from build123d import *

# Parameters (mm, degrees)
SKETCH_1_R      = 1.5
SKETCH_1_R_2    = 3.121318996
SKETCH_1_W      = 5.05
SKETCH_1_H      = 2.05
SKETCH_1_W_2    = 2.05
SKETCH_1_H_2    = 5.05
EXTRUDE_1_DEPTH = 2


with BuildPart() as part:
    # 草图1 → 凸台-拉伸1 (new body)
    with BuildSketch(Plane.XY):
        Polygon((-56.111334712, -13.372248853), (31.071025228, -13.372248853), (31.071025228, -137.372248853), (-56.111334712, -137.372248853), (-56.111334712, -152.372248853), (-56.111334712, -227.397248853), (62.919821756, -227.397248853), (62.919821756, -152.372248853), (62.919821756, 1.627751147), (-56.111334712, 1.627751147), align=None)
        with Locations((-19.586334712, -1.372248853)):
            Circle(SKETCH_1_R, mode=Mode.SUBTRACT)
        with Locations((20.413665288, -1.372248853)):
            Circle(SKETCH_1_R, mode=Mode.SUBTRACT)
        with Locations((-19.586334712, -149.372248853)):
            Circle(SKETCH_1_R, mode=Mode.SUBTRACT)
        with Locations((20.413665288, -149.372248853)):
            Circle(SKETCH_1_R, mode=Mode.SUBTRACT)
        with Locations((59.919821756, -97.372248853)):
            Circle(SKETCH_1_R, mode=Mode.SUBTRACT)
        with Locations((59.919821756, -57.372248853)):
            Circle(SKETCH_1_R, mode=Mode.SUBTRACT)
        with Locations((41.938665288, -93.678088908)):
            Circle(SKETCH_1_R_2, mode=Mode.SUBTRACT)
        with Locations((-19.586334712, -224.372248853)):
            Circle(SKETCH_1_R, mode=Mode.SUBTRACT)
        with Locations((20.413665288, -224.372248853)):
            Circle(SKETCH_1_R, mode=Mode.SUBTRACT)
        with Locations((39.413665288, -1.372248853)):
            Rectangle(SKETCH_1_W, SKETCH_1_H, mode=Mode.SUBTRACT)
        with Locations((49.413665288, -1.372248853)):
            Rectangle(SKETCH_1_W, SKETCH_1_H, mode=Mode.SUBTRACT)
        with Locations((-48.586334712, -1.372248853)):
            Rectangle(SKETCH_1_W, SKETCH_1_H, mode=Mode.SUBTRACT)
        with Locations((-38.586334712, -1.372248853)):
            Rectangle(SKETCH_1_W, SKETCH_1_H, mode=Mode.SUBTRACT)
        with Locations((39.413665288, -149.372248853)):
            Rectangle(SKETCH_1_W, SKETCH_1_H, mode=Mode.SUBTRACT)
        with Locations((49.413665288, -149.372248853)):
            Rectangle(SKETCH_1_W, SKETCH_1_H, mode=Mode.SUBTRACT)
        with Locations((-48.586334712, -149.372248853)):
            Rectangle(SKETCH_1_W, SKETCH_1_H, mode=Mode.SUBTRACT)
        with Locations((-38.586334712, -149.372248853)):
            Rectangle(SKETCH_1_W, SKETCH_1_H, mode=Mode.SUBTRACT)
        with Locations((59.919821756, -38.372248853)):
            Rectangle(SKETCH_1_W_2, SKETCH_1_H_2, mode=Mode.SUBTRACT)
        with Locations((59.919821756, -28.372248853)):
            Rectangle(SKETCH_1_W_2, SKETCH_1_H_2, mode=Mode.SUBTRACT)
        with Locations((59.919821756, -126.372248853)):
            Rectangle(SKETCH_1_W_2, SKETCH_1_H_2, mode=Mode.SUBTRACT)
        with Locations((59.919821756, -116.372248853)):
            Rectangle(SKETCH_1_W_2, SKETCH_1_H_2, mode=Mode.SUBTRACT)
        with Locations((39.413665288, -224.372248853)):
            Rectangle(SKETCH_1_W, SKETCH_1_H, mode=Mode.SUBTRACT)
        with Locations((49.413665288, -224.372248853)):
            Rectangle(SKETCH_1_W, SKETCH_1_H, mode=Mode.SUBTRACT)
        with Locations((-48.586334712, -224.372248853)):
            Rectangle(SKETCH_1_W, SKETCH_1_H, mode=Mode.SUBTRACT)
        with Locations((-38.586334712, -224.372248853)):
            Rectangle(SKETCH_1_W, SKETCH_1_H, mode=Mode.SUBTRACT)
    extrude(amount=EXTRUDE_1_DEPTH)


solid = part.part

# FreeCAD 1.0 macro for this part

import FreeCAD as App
import Part
import Sketcher
from FreeCAD import Vector

doc = App.newDocument("Part")
body = doc.addObject("PartDesign::Body", "Body")

sketch1 = body.newObject("Sketcher::SketchObject", "Sketch")
sketch1.AttachmentSupport = (doc.getObject("XY_Plane"), [""])
sketch1.MapMode = "FlatFace"
sketch1.addGeometry([
    Part.LineSegment(Vector(-56.1, -13.4, 0), Vector(31.1, -13.4, 0)),
    Part.LineSegment(Vector(31.1, -13.4, 0), Vector(31.1, -137.4, 0)),
    Part.LineSegment(Vector(31.1, -137.4, 0), Vector(-56.1, -137.4, 0)),
    Part.LineSegment(Vector(-56.1, -137.4, 0), Vector(-56.1, -227.4, 0)),
    Part.LineSegment(Vector(-56.1, -227.4, 0), Vector(62.9, -227.4, 0)),
    Part.LineSegment(Vector(62.9, -227.4, 0), Vector(62.9, 1.6, 0)),
    Part.LineSegment(Vector(62.9, 1.6, 0), Vector(-56.1, 1.6, 0)),
    Part.LineSegment(Vector(-56.1, 1.6, 0), Vector(-56.1, -13.4, 0)),
    Part.LineSegment(Vector(-46.1, -225.4, 0), Vector(-51.1, -225.4, 0)),
    Part.LineSegment(Vector(-51.1, -225.4, 0), Vector(-51.1, -223.3, 0)),
    Part.LineSegment(Vector(-51.1, -223.3, 0), Vector(-46.1, -223.3, 0)),
    Part.LineSegment(Vector(-46.1, -223.3, 0), Vector(-46.1, -225.4, 0)),
    Part.LineSegment(Vector(-36.1, -225.4, 0), Vector(-41.1, -225.4, 0)),
    Part.LineSegment(Vector(-41.1, -225.4, 0), Vector(-41.1, -223.3, 0)),
    Part.LineSegment(Vector(-41.1, -223.3, 0), Vector(-36.1, -223.3, 0)),
    Part.LineSegment(Vector(-36.1, -223.3, 0), Vector(-36.1, -225.4, 0)),
    Part.Circle(Vector(-19.6, -224.4, 0), Vector(0, 0, 1), 1.5),
    Part.LineSegment(Vector(-46.1, -150.4, 0), Vector(-51.1, -150.4, 0)),
    Part.LineSegment(Vector(-51.1, -150.4, 0), Vector(-51.1, -148.3, 0)),
    Part.LineSegment(Vector(-51.1, -148.3, 0), Vector(-46.1, -148.3, 0)),
    Part.LineSegment(Vector(-46.1, -148.3, 0), Vector(-46.1, -150.4, 0)),
    Part.LineSegment(Vector(-36.1, -150.4, 0), Vector(-41.1, -150.4, 0)),
    Part.LineSegment(Vector(-41.1, -150.4, 0), Vector(-41.1, -148.3, 0)),
    Part.LineSegment(Vector(-41.1, -148.3, 0), Vector(-36.1, -148.3, 0)),
    Part.LineSegment(Vector(-36.1, -148.3, 0), Vector(-36.1, -150.4, 0)),
    Part.Circle(Vector(-19.6, -149.4, 0), Vector(0, 0, 1), 1.5),
    Part.Circle(Vector(20.4, -224.4, 0), Vector(0, 0, 1), 1.5),
    Part.LineSegment(Vector(41.9, -225.4, 0), Vector(36.9, -225.4, 0)),
    Part.LineSegment(Vector(36.9, -225.4, 0), Vector(36.9, -223.3, 0)),
    Part.LineSegment(Vector(36.9, -223.3, 0), Vector(41.9, -223.3, 0)),
    Part.LineSegment(Vector(41.9, -223.3, 0), Vector(41.9, -225.4, 0)),
    Part.LineSegment(Vector(51.9, -225.4, 0), Vector(46.9, -225.4, 0)),
    Part.LineSegment(Vector(46.9, -225.4, 0), Vector(46.9, -223.3, 0)),
    Part.LineSegment(Vector(46.9, -223.3, 0), Vector(51.9, -223.3, 0)),
    Part.LineSegment(Vector(51.9, -223.3, 0), Vector(51.9, -225.4, 0)),
    Part.Circle(Vector(20.4, -149.4, 0), Vector(0, 0, 1), 1.5),
    Part.LineSegment(Vector(41.9, -150.4, 0), Vector(36.9, -150.4, 0)),
    Part.LineSegment(Vector(36.9, -150.4, 0), Vector(36.9, -148.3, 0)),
    Part.LineSegment(Vector(36.9, -148.3, 0), Vector(41.9, -148.3, 0)),
    Part.LineSegment(Vector(41.9, -148.3, 0), Vector(41.9, -150.4, 0)),
    Part.LineSegment(Vector(51.9, -150.4, 0), Vector(46.9, -150.4, 0)),
    Part.LineSegment(Vector(46.9, -150.4, 0), Vector(46.9, -148.3, 0)),
    Part.LineSegment(Vector(46.9, -148.3, 0), Vector(51.9, -148.3, 0)),
    Part.LineSegment(Vector(51.9, -148.3, 0), Vector(51.9, -150.4, 0)),
    Part.LineSegment(Vector(60.9, -128.9, 0), Vector(58.9, -128.9, 0)),
    Part.LineSegment(Vector(58.9, -128.9, 0), Vector(58.9, -123.8, 0)),
    Part.LineSegment(Vector(58.9, -123.8, 0), Vector(60.9, -123.8, 0)),
    Part.LineSegment(Vector(60.9, -123.8, 0), Vector(60.9, -128.9, 0)),
    Part.LineSegment(Vector(60.9, -118.9, 0), Vector(58.9, -118.9, 0)),
    Part.LineSegment(Vector(58.9, -118.9, 0), Vector(58.9, -113.8, 0)),
    Part.LineSegment(Vector(58.9, -113.8, 0), Vector(60.9, -113.8, 0)),
    Part.LineSegment(Vector(60.9, -113.8, 0), Vector(60.9, -118.9, 0)),
    Part.LineSegment(Vector(-46.1, -2.4, 0), Vector(-51.1, -2.4, 0)),
    Part.LineSegment(Vector(-51.1, -2.4, 0), Vector(-51.1, -0.3, 0)),
    Part.LineSegment(Vector(-51.1, -0.3, 0), Vector(-46.1, -0.3, 0)),
    Part.LineSegment(Vector(-46.1, -0.3, 0), Vector(-46.1, -2.4, 0)),
    Part.LineSegment(Vector(-36.1, -2.4, 0), Vector(-41.1, -2.4, 0)),
    Part.LineSegment(Vector(-41.1, -2.4, 0), Vector(-41.1, -0.3, 0)),
    Part.LineSegment(Vector(-41.1, -0.3, 0), Vector(-36.1, -0.3, 0)),
    Part.LineSegment(Vector(-36.1, -0.3, 0), Vector(-36.1, -2.4, 0)),
    Part.Circle(Vector(-19.6, -1.4, 0), Vector(0, 0, 1), 1.5),
    Part.Circle(Vector(41.9, -93.7, 0), Vector(0, 0, 1), 3.1),
    Part.Circle(Vector(59.9, -97.4, 0), Vector(0, 0, 1), 1.5),
    Part.Circle(Vector(59.9, -57.4, 0), Vector(0, 0, 1), 1.5),
    Part.Circle(Vector(20.4, -1.4, 0), Vector(0, 0, 1), 1.5),
    Part.LineSegment(Vector(60.9, -40.9, 0), Vector(58.9, -40.9, 0)),
    Part.LineSegment(Vector(58.9, -40.9, 0), Vector(58.9, -35.8, 0)),
    Part.LineSegment(Vector(58.9, -35.8, 0), Vector(60.9, -35.8, 0)),
    Part.LineSegment(Vector(60.9, -35.8, 0), Vector(60.9, -40.9, 0)),
    Part.LineSegment(Vector(60.9, -30.9, 0), Vector(58.9, -30.9, 0)),
    Part.LineSegment(Vector(58.9, -30.9, 0), Vector(58.9, -25.8, 0)),
    Part.LineSegment(Vector(58.9, -25.8, 0), Vector(60.9, -25.8, 0)),
    Part.LineSegment(Vector(60.9, -25.8, 0), Vector(60.9, -30.9, 0)),
    Part.LineSegment(Vector(41.9, -2.4, 0), Vector(36.9, -2.4, 0)),
    Part.LineSegment(Vector(36.9, -2.4, 0), Vector(36.9, -0.3, 0)),
    Part.LineSegment(Vector(36.9, -0.3, 0), Vector(41.9, -0.3, 0)),
    Part.LineSegment(Vector(41.9, -0.3, 0), Vector(41.9, -2.4, 0)),
    Part.LineSegment(Vector(51.9, -2.4, 0), Vector(46.9, -2.4, 0)),
    Part.LineSegment(Vector(46.9, -2.4, 0), Vector(46.9, -0.3, 0)),
    Part.LineSegment(Vector(46.9, -0.3, 0), Vector(51.9, -0.3, 0)),
    Part.LineSegment(Vector(51.9, -0.3, 0), Vector(51.9, -2.4, 0)),
], False)
sketch1.addConstraint([
    Sketcher.Constraint("Coincident", 0, 2, 1, 1),
    Sketcher.Constraint("Coincident", 1, 2, 2, 1),
    Sketcher.Constraint("Coincident", 2, 2, 3, 1),
    Sketcher.Constraint("Coincident", 3, 2, 4, 1),
    Sketcher.Constraint("Coincident", 4, 2, 5, 1),
    Sketcher.Constraint("Coincident", 5, 2, 6, 1),
    Sketcher.Constraint("Coincident", 6, 2, 7, 1),
    Sketcher.Constraint("Coincident", 7, 2, 0, 1),
    Sketcher.Constraint("Coincident", 8, 2, 9, 1),
    Sketcher.Constraint("Coincident", 9, 2, 10, 1),
    Sketcher.Constraint("Coincident", 10, 2, 11, 1),
    Sketcher.Constraint("Coincident", 11, 2, 8, 1),
    Sketcher.Constraint("Coincident", 12, 2, 13, 1),
    Sketcher.Constraint("Coincident", 13, 2, 14, 1),
    Sketcher.Constraint("Coincident", 14, 2, 15, 1),
    Sketcher.Constraint("Coincident", 15, 2, 12, 1),
    Sketcher.Constraint("Coincident", 17, 2, 18, 1),
    Sketcher.Constraint("Coincident", 18, 2, 19, 1),
    Sketcher.Constraint("Coincident", 19, 2, 20, 1),
    Sketcher.Constraint("Coincident", 20, 2, 17, 1),
    Sketcher.Constraint("Coincident", 21, 2, 22, 1),
    Sketcher.Constraint("Coincident", 22, 2, 23, 1),
    Sketcher.Constraint("Coincident", 23, 2, 24, 1),
    Sketcher.Constraint("Coincident", 24, 2, 21, 1),
    Sketcher.Constraint("Coincident", 27, 2, 28, 1),
    Sketcher.Constraint("Coincident", 28, 2, 29, 1),
    Sketcher.Constraint("Coincident", 29, 2, 30, 1),
    Sketcher.Constraint("Coincident", 30, 2, 27, 1),
    Sketcher.Constraint("Coincident", 31, 2, 32, 1),
    Sketcher.Constraint("Coincident", 32, 2, 33, 1),
    Sketcher.Constraint("Coincident", 33, 2, 34, 1),
    Sketcher.Constraint("Coincident", 34, 2, 31, 1),
    Sketcher.Constraint("Coincident", 36, 2, 37, 1),
    Sketcher.Constraint("Coincident", 37, 2, 38, 1),
    Sketcher.Constraint("Coincident", 38, 2, 39, 1),
    Sketcher.Constraint("Coincident", 39, 2, 36, 1),
    Sketcher.Constraint("Coincident", 40, 2, 41, 1),
    Sketcher.Constraint("Coincident", 41, 2, 42, 1),
    Sketcher.Constraint("Coincident", 42, 2, 43, 1),
    Sketcher.Constraint("Coincident", 43, 2, 40, 1),
    Sketcher.Constraint("Coincident", 44, 2, 45, 1),
    Sketcher.Constraint("Coincident", 45, 2, 46, 1),
    Sketcher.Constraint("Coincident", 46, 2, 47, 1),
    Sketcher.Constraint("Coincident", 47, 2, 44, 1),
    Sketcher.Constraint("Coincident", 48, 2, 49, 1),
    Sketcher.Constraint("Coincident", 49, 2, 50, 1),
    Sketcher.Constraint("Coincident", 50, 2, 51, 1),
    Sketcher.Constraint("Coincident", 51, 2, 48, 1),
    Sketcher.Constraint("Coincident", 52, 2, 53, 1),
    Sketcher.Constraint("Coincident", 53, 2, 54, 1),
    Sketcher.Constraint("Coincident", 54, 2, 55, 1),
    Sketcher.Constraint("Coincident", 55, 2, 52, 1),
    Sketcher.Constraint("Coincident", 56, 2, 57, 1),
    Sketcher.Constraint("Coincident", 57, 2, 58, 1),
    Sketcher.Constraint("Coincident", 58, 2, 59, 1),
    Sketcher.Constraint("Coincident", 59, 2, 56, 1),
    Sketcher.Constraint("Coincident", 65, 2, 66, 1),
    Sketcher.Constraint("Coincident", 66, 2, 67, 1),
    Sketcher.Constraint("Coincident", 67, 2, 68, 1),
    Sketcher.Constraint("Coincident", 68, 2, 65, 1),
    Sketcher.Constraint("Coincident", 69, 2, 70, 1),
    Sketcher.Constraint("Coincident", 70, 2, 71, 1),
    Sketcher.Constraint("Coincident", 71, 2, 72, 1),
    Sketcher.Constraint("Coincident", 72, 2, 69, 1),
    Sketcher.Constraint("Coincident", 73, 2, 74, 1),
    Sketcher.Constraint("Coincident", 74, 2, 75, 1),
    Sketcher.Constraint("Coincident", 75, 2, 76, 1),
    Sketcher.Constraint("Coincident", 76, 2, 73, 1),
    Sketcher.Constraint("Coincident", 77, 2, 78, 1),
    Sketcher.Constraint("Coincident", 78, 2, 79, 1),
    Sketcher.Constraint("Coincident", 79, 2, 80, 1),
    Sketcher.Constraint("Coincident", 80, 2, 77, 1),
    Sketcher.Constraint("Horizontal", 0),
    Sketcher.Constraint("Vertical", 1),
    Sketcher.Constraint("Horizontal", 2),
    Sketcher.Constraint("Vertical", 3),
    Sketcher.Constraint("Horizontal", 4),
    Sketcher.Constraint("Vertical", 5),
    Sketcher.Constraint("Horizontal", 6),
    Sketcher.Constraint("Vertical", 7),
    Sketcher.Constraint("Horizontal", 8),
    Sketcher.Constraint("Vertical", 9),
    Sketcher.Constraint("Horizontal", 10),
    Sketcher.Constraint("Vertical", 11),
    Sketcher.Constraint("Horizontal", 12),
    Sketcher.Constraint("Vertical", 13),
    Sketcher.Constraint("Horizontal", 14),
    Sketcher.Constraint("Vertical", 15),
    Sketcher.Constraint("Horizontal", 17),
    Sketcher.Constraint("Vertical", 18),
    Sketcher.Constraint("Horizontal", 19),
    Sketcher.Constraint("Vertical", 20),
    Sketcher.Constraint("Horizontal", 21),
    Sketcher.Constraint("Vertical", 22),
    Sketcher.Constraint("Horizontal", 23),
    Sketcher.Constraint("Vertical", 24),
    Sketcher.Constraint("Horizontal", 27),
    Sketcher.Constraint("Vertical", 28),
    Sketcher.Constraint("Horizontal", 29),
    Sketcher.Constraint("Vertical", 30),
    Sketcher.Constraint("Horizontal", 31),
    Sketcher.Constraint("Vertical", 32),
    Sketcher.Constraint("Horizontal", 33),
    Sketcher.Constraint("Vertical", 34),
    Sketcher.Constraint("Horizontal", 36),
    Sketcher.Constraint("Vertical", 37),
    Sketcher.Constraint("Horizontal", 38),
    Sketcher.Constraint("Vertical", 39),
    Sketcher.Constraint("Horizontal", 40),
    Sketcher.Constraint("Vertical", 41),
    Sketcher.Constraint("Horizontal", 42),
    Sketcher.Constraint("Vertical", 43),
    Sketcher.Constraint("Horizontal", 44),
    Sketcher.Constraint("Vertical", 45),
    Sketcher.Constraint("Horizontal", 46),
    Sketcher.Constraint("Vertical", 47),
    Sketcher.Constraint("Horizontal", 48),
    Sketcher.Constraint("Vertical", 49),
    Sketcher.Constraint("Horizontal", 50),
    Sketcher.Constraint("Vertical", 51),
    Sketcher.Constraint("Horizontal", 52),
    Sketcher.Constraint("Vertical", 53),
    Sketcher.Constraint("Horizontal", 54),
    Sketcher.Constraint("Vertical", 55),
    Sketcher.Constraint("Horizontal", 56),
    Sketcher.Constraint("Vertical", 57),
    Sketcher.Constraint("Horizontal", 58),
    Sketcher.Constraint("Vertical", 59),
    Sketcher.Constraint("Horizontal", 65),
    Sketcher.Constraint("Vertical", 66),
    Sketcher.Constraint("Horizontal", 67),
    Sketcher.Constraint("Vertical", 68),
    Sketcher.Constraint("Horizontal", 69),
    Sketcher.Constraint("Vertical", 70),
    Sketcher.Constraint("Horizontal", 71),
    Sketcher.Constraint("Vertical", 72),
    Sketcher.Constraint("Horizontal", 73),
    Sketcher.Constraint("Vertical", 74),
    Sketcher.Constraint("Horizontal", 75),
    Sketcher.Constraint("Vertical", 76),
    Sketcher.Constraint("Horizontal", 77),
    Sketcher.Constraint("Vertical", 78),
    Sketcher.Constraint("Horizontal", 79),
    Sketcher.Constraint("Vertical", 80),
    Sketcher.Constraint("Equal", 16, 25),
    Sketcher.Constraint("Equal", 25, 26),
    Sketcher.Constraint("Equal", 26, 35),
    Sketcher.Constraint("Equal", 35, 60),
    Sketcher.Constraint("Equal", 60, 62),
    Sketcher.Constraint("Equal", 62, 63),
    Sketcher.Constraint("Equal", 63, 64),
    Sketcher.Constraint("Horizontal", 16, 3, 26, 3),
    Sketcher.Constraint("Horizontal", 25, 3, 35, 3),
    Sketcher.Constraint("Horizontal", 60, 3, 64, 3),
    Sketcher.Constraint("Horizontal", 11, 2, 12, 2),
    Sketcher.Constraint("Horizontal", 10, 2, 13, 2),
    Sketcher.Constraint("Horizontal", 20, 2, 21, 2),
    Sketcher.Constraint("Horizontal", 19, 2, 22, 2),
    Sketcher.Constraint("Horizontal", 15, 2, 27, 2),
    Sketcher.Constraint("Horizontal", 14, 2, 28, 2),
    Sketcher.Constraint("Horizontal", 30, 2, 31, 2),
    Sketcher.Constraint("Horizontal", 29, 2, 32, 2),
    Sketcher.Constraint("Horizontal", 24, 2, 36, 2),
    Sketcher.Constraint("Horizontal", 23, 2, 37, 2),
    Sketcher.Constraint("Horizontal", 39, 2, 40, 2),
    Sketcher.Constraint("Horizontal", 38, 2, 41, 2),
    Sketcher.Constraint("Horizontal", 55, 2, 56, 2),
    Sketcher.Constraint("Horizontal", 54, 2, 57, 2),
    Sketcher.Constraint("Horizontal", 59, 2, 73, 2),
    Sketcher.Constraint("Horizontal", 58, 2, 74, 2),
    Sketcher.Constraint("Horizontal", 76, 2, 77, 2),
    Sketcher.Constraint("Horizontal", 75, 2, 78, 2),
    Sketcher.Constraint("Vertical", 16, 3, 25, 3),
    Sketcher.Constraint("Vertical", 26, 3, 35, 3),
    Sketcher.Constraint("Vertical", 25, 3, 60, 3),
    Sketcher.Constraint("Vertical", 62, 3, 63, 3),
    Sketcher.Constraint("Vertical", 35, 3, 64, 3),
    Sketcher.Constraint("Vertical", 3, 2, 6, 2),
    Sketcher.Constraint("Vertical", 9, 2, 17, 2),
    Sketcher.Constraint("Vertical", 11, 2, 19, 2),
    Sketcher.Constraint("Vertical", 13, 2, 21, 2),
    Sketcher.Constraint("Vertical", 15, 2, 23, 2),
    Sketcher.Constraint("Vertical", 61, 3, 29, 2),
    Sketcher.Constraint("Vertical", 28, 2, 36, 2),
    Sketcher.Constraint("Vertical", 30, 2, 38, 2),
    Sketcher.Constraint("Vertical", 32, 2, 40, 2),
    Sketcher.Constraint("Vertical", 34, 2, 42, 2),
    Sketcher.Constraint("Vertical", 45, 2, 48, 2),
    Sketcher.Constraint("Vertical", 47, 2, 50, 2),
    Sketcher.Constraint("Vertical", 18, 2, 52, 2),
    Sketcher.Constraint("Vertical", 20, 2, 54, 2),
    Sketcher.Constraint("Vertical", 22, 2, 56, 2),
    Sketcher.Constraint("Vertical", 24, 2, 58, 2),
    Sketcher.Constraint("Vertical", 49, 2, 65, 2),
    Sketcher.Constraint("Vertical", 51, 2, 67, 2),
    Sketcher.Constraint("Vertical", 66, 2, 69, 2),
    Sketcher.Constraint("Vertical", 68, 2, 71, 2),
    Sketcher.Constraint("Vertical", 37, 2, 73, 2),
    Sketcher.Constraint("Vertical", 39, 2, 75, 2),
    Sketcher.Constraint("Vertical", 41, 2, 77, 2),
    Sketcher.Constraint("Vertical", 43, 2, 79, 2),
    Sketcher.Constraint("Equal", 10, 12),
    Sketcher.Constraint("Equal", 23, 27),
    Sketcher.Constraint("Equal", 29, 31),
    Sketcher.Constraint("Equal", 71, 9),
    Sketcher.Constraint("Equal", 15, 18),
    Sketcher.Constraint("Equal", 79, 45),
    Sketcher.Constraint("Equal", 47, 49),
    Sketcher.Constraint("Equal", 43, 53),
    Sketcher.Constraint("Equal", 51, 66),
    Sketcher.Constraint("Equal", 68, 70),
    Sketcher.Constraint("Diameter", 16, 3.0),
    Sketcher.Constraint("DistanceY", 1, 2, 1, 1, 124.0),
    Sketcher.Constraint("DistanceY", 7, 2, 7, 1, 15.0),
    Sketcher.Constraint("DistanceX", 8, 2, 8, 1, 5.05),
    Sketcher.Constraint("DistanceX", 44, 2, 44, 1, 2.05),
    Sketcher.Constraint("DistanceY", 3, 2, 3, 1, 90.025),
    Sketcher.Constraint("Diameter", 61, 6.242638),
    Sketcher.Constraint("DistanceX", 0, 1, 0, 2, 87.18236),
    Sketcher.Constraint("DistanceX", 4, 1, 4, 2, 119.031156),
    Sketcher.Constraint("DistanceY", 16, 3, -1, 1, 224.372249),
    Sketcher.Constraint("DistanceY", 25, 3, -1, 1, 149.372249),
    Sketcher.Constraint("DistanceY", 60, 3, -1, 1, 1.372249),
    Sketcher.Constraint("DistanceY", 61, 3, -1, 1, 93.678089),
    Sketcher.Constraint("DistanceX", -1, 1, 62, 3, 59.919822),
    Sketcher.Constraint("DistanceY", 62, 3, -1, 1, 97.372249),
    Sketcher.Constraint("DistanceY", 63, 3, -1, 1, 57.372249),
    Sketcher.Constraint("DistanceY", 0, 2, -1, 1, 13.372249),
    Sketcher.Constraint("DistanceX", -1, 1, 4, 2, 62.919822),
    Sketcher.Constraint("DistanceY", 8, 2, -1, 1, 225.397249),
    Sketcher.Constraint("DistanceY", 17, 2, -1, 1, 150.397249),
    Sketcher.Constraint("DistanceX", -1, 1, 44, 2, 58.894822),
    Sketcher.Constraint("DistanceY", 44, 2, -1, 1, 128.897249),
    Sketcher.Constraint("DistanceY", 48, 2, -1, 1, 118.897249),
    Sketcher.Constraint("DistanceY", 52, 2, -1, 1, 2.397249),
    Sketcher.Constraint("DistanceY", 65, 2, -1, 1, 40.897249),
    Sketcher.Constraint("DistanceY", 69, 2, -1, 1, 30.897249),
    Sketcher.Constraint("DistanceX", 16, 3, -1, 1, 19.586335),
    Sketcher.Constraint("DistanceX", -1, 1, 26, 3, 20.413665),
    Sketcher.Constraint("DistanceX", -1, 1, 61, 3, 41.938665),
    Sketcher.Constraint("DistanceX", 8, 2, -1, 1, 51.111335),
    Sketcher.Constraint("DistanceX", 12, 2, -1, 1, 41.111335),
    Sketcher.Constraint("DistanceX", -1, 1, 31, 2, 46.888665),
])
pad1 = body.newObject("PartDesign::Pad", "Pad")
pad1.Profile = sketch1
pad1.Length = 2

doc.recompute()
